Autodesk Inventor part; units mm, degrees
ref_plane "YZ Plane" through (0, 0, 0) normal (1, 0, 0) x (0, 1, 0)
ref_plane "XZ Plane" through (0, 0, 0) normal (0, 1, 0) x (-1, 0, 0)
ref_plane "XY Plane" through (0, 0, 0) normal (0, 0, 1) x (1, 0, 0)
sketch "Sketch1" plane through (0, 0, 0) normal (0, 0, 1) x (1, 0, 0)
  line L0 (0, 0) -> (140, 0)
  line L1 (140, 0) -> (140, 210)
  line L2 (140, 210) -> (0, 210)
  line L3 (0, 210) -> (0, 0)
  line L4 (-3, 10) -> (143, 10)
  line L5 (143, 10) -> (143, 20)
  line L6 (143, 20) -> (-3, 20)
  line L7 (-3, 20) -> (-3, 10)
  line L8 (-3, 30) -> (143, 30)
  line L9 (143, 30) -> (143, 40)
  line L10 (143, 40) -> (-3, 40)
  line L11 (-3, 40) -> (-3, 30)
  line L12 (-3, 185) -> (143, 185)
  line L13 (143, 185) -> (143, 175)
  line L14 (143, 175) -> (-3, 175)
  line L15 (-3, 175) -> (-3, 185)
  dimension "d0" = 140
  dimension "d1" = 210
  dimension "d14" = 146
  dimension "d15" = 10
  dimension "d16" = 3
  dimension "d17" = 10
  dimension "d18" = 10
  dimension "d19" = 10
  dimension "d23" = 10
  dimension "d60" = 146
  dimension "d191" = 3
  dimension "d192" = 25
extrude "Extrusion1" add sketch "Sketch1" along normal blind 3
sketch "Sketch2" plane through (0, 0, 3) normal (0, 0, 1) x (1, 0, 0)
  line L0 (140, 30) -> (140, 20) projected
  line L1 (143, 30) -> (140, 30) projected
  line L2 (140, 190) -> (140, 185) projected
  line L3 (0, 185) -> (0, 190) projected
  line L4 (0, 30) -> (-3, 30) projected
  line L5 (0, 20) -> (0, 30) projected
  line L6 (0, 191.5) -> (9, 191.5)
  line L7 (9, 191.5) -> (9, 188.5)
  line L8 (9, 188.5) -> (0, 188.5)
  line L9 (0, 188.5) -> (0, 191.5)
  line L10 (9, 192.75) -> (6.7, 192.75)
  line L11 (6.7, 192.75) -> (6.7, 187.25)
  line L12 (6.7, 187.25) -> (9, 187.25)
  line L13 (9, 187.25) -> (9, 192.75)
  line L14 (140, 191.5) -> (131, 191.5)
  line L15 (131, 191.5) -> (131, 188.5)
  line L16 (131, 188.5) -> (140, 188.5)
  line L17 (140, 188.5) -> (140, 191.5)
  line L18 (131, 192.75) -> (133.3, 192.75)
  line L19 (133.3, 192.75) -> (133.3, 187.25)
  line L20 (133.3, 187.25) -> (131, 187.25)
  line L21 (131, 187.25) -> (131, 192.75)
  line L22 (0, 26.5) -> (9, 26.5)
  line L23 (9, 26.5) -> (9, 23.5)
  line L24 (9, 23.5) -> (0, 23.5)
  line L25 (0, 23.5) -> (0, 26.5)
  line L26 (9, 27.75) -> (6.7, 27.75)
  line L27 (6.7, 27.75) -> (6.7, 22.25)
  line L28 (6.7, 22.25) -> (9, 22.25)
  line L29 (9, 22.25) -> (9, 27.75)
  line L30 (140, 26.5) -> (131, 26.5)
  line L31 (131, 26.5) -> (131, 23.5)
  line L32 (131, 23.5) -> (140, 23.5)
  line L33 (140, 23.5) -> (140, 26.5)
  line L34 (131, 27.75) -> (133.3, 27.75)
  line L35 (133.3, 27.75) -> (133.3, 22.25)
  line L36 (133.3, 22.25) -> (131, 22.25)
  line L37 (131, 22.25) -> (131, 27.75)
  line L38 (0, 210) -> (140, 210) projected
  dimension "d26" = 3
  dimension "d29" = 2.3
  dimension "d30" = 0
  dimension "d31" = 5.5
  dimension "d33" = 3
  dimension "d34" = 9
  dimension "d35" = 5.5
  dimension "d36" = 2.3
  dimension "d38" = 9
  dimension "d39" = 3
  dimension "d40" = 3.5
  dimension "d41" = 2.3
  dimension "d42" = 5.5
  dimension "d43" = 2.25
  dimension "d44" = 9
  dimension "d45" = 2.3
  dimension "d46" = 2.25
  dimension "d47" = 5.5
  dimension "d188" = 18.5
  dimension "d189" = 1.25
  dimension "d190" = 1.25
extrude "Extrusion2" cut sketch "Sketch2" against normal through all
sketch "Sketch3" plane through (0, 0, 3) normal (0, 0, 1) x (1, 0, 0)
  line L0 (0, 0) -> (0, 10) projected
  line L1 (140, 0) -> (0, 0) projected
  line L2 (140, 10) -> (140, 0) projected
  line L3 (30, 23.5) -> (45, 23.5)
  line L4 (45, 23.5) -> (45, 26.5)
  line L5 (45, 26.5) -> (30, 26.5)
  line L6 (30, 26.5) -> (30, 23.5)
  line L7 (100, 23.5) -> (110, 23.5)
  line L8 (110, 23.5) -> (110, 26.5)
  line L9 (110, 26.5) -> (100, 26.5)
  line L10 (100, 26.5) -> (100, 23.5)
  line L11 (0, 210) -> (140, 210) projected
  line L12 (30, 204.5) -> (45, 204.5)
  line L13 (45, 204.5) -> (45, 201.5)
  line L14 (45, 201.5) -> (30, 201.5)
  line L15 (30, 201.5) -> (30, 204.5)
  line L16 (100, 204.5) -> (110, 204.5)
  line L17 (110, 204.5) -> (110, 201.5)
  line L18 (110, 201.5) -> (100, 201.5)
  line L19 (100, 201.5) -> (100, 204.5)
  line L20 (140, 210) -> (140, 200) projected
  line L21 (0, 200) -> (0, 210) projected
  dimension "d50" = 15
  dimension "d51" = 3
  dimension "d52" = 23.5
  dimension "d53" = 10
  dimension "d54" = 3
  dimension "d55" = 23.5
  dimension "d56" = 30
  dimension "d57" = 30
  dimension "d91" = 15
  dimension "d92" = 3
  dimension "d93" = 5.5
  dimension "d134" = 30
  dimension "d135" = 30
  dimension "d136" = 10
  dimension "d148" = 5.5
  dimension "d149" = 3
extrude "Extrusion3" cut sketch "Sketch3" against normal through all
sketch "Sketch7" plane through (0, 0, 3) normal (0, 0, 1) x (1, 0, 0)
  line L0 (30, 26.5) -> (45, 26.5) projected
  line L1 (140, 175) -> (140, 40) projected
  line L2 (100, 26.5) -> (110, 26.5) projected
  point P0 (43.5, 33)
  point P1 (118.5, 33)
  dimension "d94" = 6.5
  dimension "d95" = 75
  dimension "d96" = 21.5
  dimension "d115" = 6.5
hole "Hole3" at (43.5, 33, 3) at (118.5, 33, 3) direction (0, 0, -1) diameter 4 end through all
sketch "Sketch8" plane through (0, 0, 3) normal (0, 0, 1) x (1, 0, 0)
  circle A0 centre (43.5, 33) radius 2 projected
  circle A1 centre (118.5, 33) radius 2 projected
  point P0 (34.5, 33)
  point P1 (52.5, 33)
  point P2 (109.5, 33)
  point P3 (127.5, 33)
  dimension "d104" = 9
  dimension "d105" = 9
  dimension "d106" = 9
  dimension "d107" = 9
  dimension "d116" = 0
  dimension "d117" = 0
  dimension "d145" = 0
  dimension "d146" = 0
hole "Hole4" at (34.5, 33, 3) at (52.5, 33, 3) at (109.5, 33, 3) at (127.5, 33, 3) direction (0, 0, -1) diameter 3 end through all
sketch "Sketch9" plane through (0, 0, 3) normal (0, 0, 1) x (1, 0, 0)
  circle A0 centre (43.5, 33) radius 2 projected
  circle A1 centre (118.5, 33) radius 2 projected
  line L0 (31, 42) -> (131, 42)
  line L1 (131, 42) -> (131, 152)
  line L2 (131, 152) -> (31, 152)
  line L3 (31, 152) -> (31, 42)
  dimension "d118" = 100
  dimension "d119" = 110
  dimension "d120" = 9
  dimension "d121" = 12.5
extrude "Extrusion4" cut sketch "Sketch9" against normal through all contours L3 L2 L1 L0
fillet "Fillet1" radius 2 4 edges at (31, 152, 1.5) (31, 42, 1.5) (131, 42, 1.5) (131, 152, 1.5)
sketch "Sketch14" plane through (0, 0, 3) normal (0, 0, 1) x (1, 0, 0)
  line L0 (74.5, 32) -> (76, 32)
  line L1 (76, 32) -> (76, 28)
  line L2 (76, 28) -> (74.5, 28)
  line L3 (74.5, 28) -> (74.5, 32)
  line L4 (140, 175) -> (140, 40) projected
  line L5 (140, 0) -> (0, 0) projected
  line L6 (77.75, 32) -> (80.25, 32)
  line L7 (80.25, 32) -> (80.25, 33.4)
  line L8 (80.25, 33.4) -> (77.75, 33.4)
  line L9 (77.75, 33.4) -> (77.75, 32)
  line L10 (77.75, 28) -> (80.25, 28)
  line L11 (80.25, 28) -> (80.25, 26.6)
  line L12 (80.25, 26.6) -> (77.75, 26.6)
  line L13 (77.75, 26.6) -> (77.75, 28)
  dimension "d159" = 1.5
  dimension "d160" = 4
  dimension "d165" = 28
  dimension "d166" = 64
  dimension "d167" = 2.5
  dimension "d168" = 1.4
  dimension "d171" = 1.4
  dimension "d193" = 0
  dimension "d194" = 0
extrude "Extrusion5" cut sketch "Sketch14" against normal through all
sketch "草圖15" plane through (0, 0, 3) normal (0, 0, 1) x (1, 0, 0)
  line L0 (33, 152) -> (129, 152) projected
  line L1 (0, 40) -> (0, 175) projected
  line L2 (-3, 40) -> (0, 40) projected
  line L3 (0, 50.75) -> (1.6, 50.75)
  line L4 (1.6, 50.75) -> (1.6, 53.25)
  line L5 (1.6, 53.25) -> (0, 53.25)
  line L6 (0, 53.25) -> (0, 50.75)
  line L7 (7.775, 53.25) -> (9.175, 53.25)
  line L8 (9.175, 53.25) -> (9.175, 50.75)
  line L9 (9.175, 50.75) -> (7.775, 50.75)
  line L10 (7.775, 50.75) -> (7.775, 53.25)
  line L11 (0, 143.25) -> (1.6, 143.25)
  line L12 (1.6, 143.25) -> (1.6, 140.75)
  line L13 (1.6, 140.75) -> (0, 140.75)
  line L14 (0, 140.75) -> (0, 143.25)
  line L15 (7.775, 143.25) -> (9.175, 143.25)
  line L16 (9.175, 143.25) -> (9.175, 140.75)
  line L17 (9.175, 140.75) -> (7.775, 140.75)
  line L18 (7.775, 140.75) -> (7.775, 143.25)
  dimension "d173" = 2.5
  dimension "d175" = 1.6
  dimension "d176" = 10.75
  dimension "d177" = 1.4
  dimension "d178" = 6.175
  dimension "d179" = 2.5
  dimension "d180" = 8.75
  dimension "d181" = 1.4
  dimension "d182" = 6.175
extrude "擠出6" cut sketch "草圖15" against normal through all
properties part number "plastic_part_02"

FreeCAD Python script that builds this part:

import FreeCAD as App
import Part
import Sketcher
from FreeCAD import Vector
Q = App.Units.Quantity


def edges_at(feature, points):
    """Names of the edges that pass closest to the given points."""
    edges = feature.Shape.Edges
    near = lambda p: min(range(len(edges)), key=lambda i: edges[i].distToShape(Part.Vertex(*p))[0])
    return sorted({f"Edge{near(p) + 1}" for p in points})

doc = App.newDocument("Part")
body = doc.addObject("PartDesign::Body", "Body")

# Sketch on XY plane
sketch1 = body.newObject("Sketcher::SketchObject", "Sketch")
sketch1.AttachmentSupport = (doc.getObject("XY_Plane"), [""])
sketch1.MapMode = "FlatFace"
sketch1.addGeometry([
    Part.LineSegment(Vector(0, 10, 0), Vector(0, 0, 0)),  # 0
    Part.LineSegment(Vector(0, 0, 0), Vector(140, 0, 0)),  # 1
    Part.LineSegment(Vector(140, 0, 0), Vector(140, 10, 0)),  # 2
    Part.LineSegment(Vector(140, 10, 0), Vector(143, 10, 0)),  # 3
    Part.LineSegment(Vector(143, 10, 0), Vector(143, 20, 0)),  # 4
    Part.LineSegment(Vector(143, 20, 0), Vector(140, 20, 0)),  # 5
    Part.LineSegment(Vector(140, 20, 0), Vector(140, 30, 0)),  # 6
    Part.LineSegment(Vector(140, 30, 0), Vector(143, 30, 0)),  # 7
    Part.LineSegment(Vector(143, 30, 0), Vector(143, 40, 0)),  # 8
    Part.LineSegment(Vector(143, 40, 0), Vector(140, 40, 0)),  # 9
    Part.LineSegment(Vector(140, 40, 0), Vector(140, 175, 0)),  # 10
    Part.LineSegment(Vector(140, 175, 0), Vector(143, 175, 0)),  # 11
    Part.LineSegment(Vector(143, 175, 0), Vector(143, 185, 0)),  # 12
    Part.LineSegment(Vector(143, 185, 0), Vector(140, 185, 0)),  # 13
    Part.LineSegment(Vector(140, 185, 0), Vector(140, 210, 0)),  # 14
    Part.LineSegment(Vector(140, 210, 0), Vector(0, 210, 0)),  # 15
    Part.LineSegment(Vector(0, 210, 0), Vector(0, 185, 0)),  # 16
    Part.LineSegment(Vector(0, 185, 0), Vector(-3, 185, 0)),  # 17
    Part.LineSegment(Vector(-3, 185, 0), Vector(-3, 175, 0)),  # 18
    Part.LineSegment(Vector(-3, 175, 0), Vector(0, 175, 0)),  # 19
    Part.LineSegment(Vector(0, 175, 0), Vector(0, 40, 0)),  # 20
    Part.LineSegment(Vector(0, 40, 0), Vector(-3, 40, 0)),  # 21
    Part.LineSegment(Vector(-3, 40, 0), Vector(-3, 30, 0)),  # 22
    Part.LineSegment(Vector(-3, 30, 0), Vector(0, 30, 0)),  # 23
    Part.LineSegment(Vector(0, 30, 0), Vector(0, 20, 0)),  # 24
    Part.LineSegment(Vector(0, 20, 0), Vector(-3, 20, 0)),  # 25
    Part.LineSegment(Vector(-3, 20, 0), Vector(-3, 10, 0)),  # 26
    Part.LineSegment(Vector(-3, 10, 0), Vector(0, 10, 0)),  # 27
], False)
sketch1.addConstraint([
    Sketcher.Constraint("Coincident", 0, 2, 1, 1),
    Sketcher.Constraint("Coincident", 1, 2, 2, 1),
    Sketcher.Constraint("Coincident", 2, 2, 3, 1),
    Sketcher.Constraint("Coincident", 3, 2, 4, 1),
    Sketcher.Constraint("Coincident", 4, 2, 5, 1),
    Sketcher.Constraint("Coincident", 5, 2, 6, 1),
    Sketcher.Constraint("Coincident", 6, 2, 7, 1),
    Sketcher.Constraint("Coincident", 7, 2, 8, 1),
    Sketcher.Constraint("Coincident", 8, 2, 9, 1),
    Sketcher.Constraint("Coincident", 9, 2, 10, 1),
    Sketcher.Constraint("Coincident", 10, 2, 11, 1),
    Sketcher.Constraint("Coincident", 11, 2, 12, 1),
    Sketcher.Constraint("Coincident", 12, 2, 13, 1),
    Sketcher.Constraint("Coincident", 13, 2, 14, 1),
    Sketcher.Constraint("Coincident", 14, 2, 15, 1),
    Sketcher.Constraint("Coincident", 15, 2, 16, 1),
    Sketcher.Constraint("Coincident", 16, 2, 17, 1),
    Sketcher.Constraint("Coincident", 17, 2, 18, 1),
    Sketcher.Constraint("Coincident", 18, 2, 19, 1),
    Sketcher.Constraint("Coincident", 19, 2, 20, 1),
    Sketcher.Constraint("Coincident", 20, 2, 21, 1),
    Sketcher.Constraint("Coincident", 21, 2, 22, 1),
    Sketcher.Constraint("Coincident", 22, 2, 23, 1),
    Sketcher.Constraint("Coincident", 23, 2, 24, 1),
    Sketcher.Constraint("Coincident", 24, 2, 25, 1),
    Sketcher.Constraint("Coincident", 25, 2, 26, 1),
    Sketcher.Constraint("Coincident", 26, 2, 27, 1),
    Sketcher.Constraint("Coincident", 27, 2, 0, 1),
    Sketcher.Constraint("Vertical", 0),
    Sketcher.Constraint("Horizontal", 1),
    Sketcher.Constraint("Vertical", 2),
    Sketcher.Constraint("Horizontal", 3),
    Sketcher.Constraint("Vertical", 4),
    Sketcher.Constraint("Horizontal", 5),
    Sketcher.Constraint("Vertical", 6),
    Sketcher.Constraint("Horizontal", 7),
    Sketcher.Constraint("Vertical", 8),
    Sketcher.Constraint("Horizontal", 9),
    Sketcher.Constraint("Vertical", 10),
    Sketcher.Constraint("Horizontal", 11),
    Sketcher.Constraint("Vertical", 12),
    Sketcher.Constraint("Horizontal", 13),
    Sketcher.Constraint("Vertical", 14),
    Sketcher.Constraint("Horizontal", 15),
    Sketcher.Constraint("Vertical", 16),
    Sketcher.Constraint("Horizontal", 17),
    Sketcher.Constraint("Vertical", 18),
    Sketcher.Constraint("Horizontal", 19),
    Sketcher.Constraint("Vertical", 20),
    Sketcher.Constraint("Horizontal", 21),
    Sketcher.Constraint("Vertical", 22),
    Sketcher.Constraint("Horizontal", 23),
    Sketcher.Constraint("Vertical", 24),
    Sketcher.Constraint("Horizontal", 25),
    Sketcher.Constraint("Vertical", 26),
    Sketcher.Constraint("Horizontal", 27),
    Sketcher.Constraint("Coincident", 0, 2, -1, 1),
    Sketcher.Constraint("PointOnObject", 15, 2, -2),
    Sketcher.Constraint("PointOnObject", 19, 2, -2),
    Sketcher.Constraint("PointOnObject", 23, 2, -2),
    Sketcher.Constraint("Horizontal", 13, 2, 16, 2),
    Sketcher.Constraint("Horizontal", 11, 2, 18, 2),
    Sketcher.Constraint("Horizontal", 9, 2, 20, 2),
    Sketcher.Constraint("Horizontal", 7, 2, 22, 2),
    Sketcher.Constraint("Horizontal", 5, 2, 24, 2),
    Sketcher.Constraint("Horizontal", 3, 2, 26, 2),
    Sketcher.Constraint("Vertical", 2, 2, 5, 2),
    Sketcher.Constraint("Vertical", 4, 2, 7, 2),
    Sketcher.Constraint("Vertical", 6, 2, 9, 2),
    Sketcher.Constraint("Vertical", 8, 2, 11, 2),
    Sketcher.Constraint("Vertical", 10, 2, 13, 2),
    Sketcher.Constraint("Vertical", 18, 2, 21, 2),
    Sketcher.Constraint("Vertical", 22, 2, 25, 2),
    Sketcher.Constraint("Equal", 13, 17),
    Sketcher.Constraint("Equal", 2, 4),
    Sketcher.Constraint("Equal", 4, 6),
    Sketcher.Constraint("Equal", 6, 8),
    Sketcher.Constraint("Equal", 8, 12),
    Sketcher.Constraint("DistanceX", 1, 1, 1, 2, Q("140 mm")),
    Sketcher.Constraint("DistanceX", 3, 1, 3, 2, Q("3 mm")),
    Sketcher.Constraint("DistanceY", 0, 2, 0, 1, Q("10 mm")),
    Sketcher.Constraint("DistanceY", 14, 1, 14, 2, Q("25 mm")),
    Sketcher.Constraint("DistanceY", -1, 1, 14, 2, Q("210 mm")),
])
pad1 = body.newObject("PartDesign::Pad", "Pad")
pad1.Profile = sketch1
pad1.Length = 3

# Sketch on XY plane
sketch2 = body.newObject("Sketcher::SketchObject", "Sketch001")
sketch2.AttachmentSupport = (doc.getObject("XY_Plane"), [""])
sketch2.MapMode = "FlatFace"
sketch2.AttachmentOffset = App.Placement(Vector(0, 0, 3), App.Rotation())
sketch2.addGeometry([
    Part.LineSegment(Vector(140, 23.5, 0), Vector(140, 26.5, 0)),  # 0
    Part.LineSegment(Vector(140, 26.5, 0), Vector(133.3, 26.5, 0)),  # 1
    Part.LineSegment(Vector(133.3, 26.5, 0), Vector(133.3, 27.8, 0)),  # 2
    Part.LineSegment(Vector(133.3, 27.8, 0), Vector(131, 27.8, 0)),  # 3
    Part.LineSegment(Vector(131, 27.8, 0), Vector(131, 22.2, 0)),  # 4
    Part.LineSegment(Vector(131, 22.2, 0), Vector(133.3, 22.2, 0)),  # 5
    Part.LineSegment(Vector(133.3, 22.2, 0), Vector(133.3, 23.5, 0)),  # 6
    Part.LineSegment(Vector(133.3, 23.5, 0), Vector(140, 23.5, 0)),  # 7
    Part.LineSegment(Vector(140, 188.5, 0), Vector(140, 191.5, 0)),  # 8
    Part.LineSegment(Vector(140, 191.5, 0), Vector(133.3, 191.5, 0)),  # 9
    Part.LineSegment(Vector(133.3, 191.5, 0), Vector(133.3, 192.8, 0)),  # 10
    Part.LineSegment(Vector(133.3, 192.8, 0), Vector(131, 192.8, 0)),  # 11
    Part.LineSegment(Vector(131, 192.8, 0), Vector(131, 187.2, 0)),  # 12
    Part.LineSegment(Vector(131, 187.2, 0), Vector(133.3, 187.2, 0)),  # 13
    Part.LineSegment(Vector(133.3, 187.2, 0), Vector(133.3, 188.5, 0)),  # 14
    Part.LineSegment(Vector(133.3, 188.5, 0), Vector(140, 188.5, 0)),  # 15
    Part.LineSegment(Vector(0, 188.5, 0), Vector(6.7, 188.5, 0)),  # 16
    Part.LineSegment(Vector(6.7, 188.5, 0), Vector(6.7, 187.2, 0)),  # 17
    Part.LineSegment(Vector(6.7, 187.2, 0), Vector(9, 187.2, 0)),  # 18
    Part.LineSegment(Vector(9, 187.2, 0), Vector(9, 192.8, 0)),  # 19
    Part.LineSegment(Vector(9, 192.8, 0), Vector(6.7, 192.8, 0)),  # 20
    Part.LineSegment(Vector(6.7, 192.8, 0), Vector(6.7, 191.5, 0)),  # 21
    Part.LineSegment(Vector(6.7, 191.5, 0), Vector(0, 191.5, 0)),  # 22
    Part.LineSegment(Vector(0, 191.5, 0), Vector(0, 188.5, 0)),  # 23
    Part.LineSegment(Vector(0, 26.5, 0), Vector(0, 23.5, 0)),  # 24
    Part.LineSegment(Vector(0, 23.5, 0), Vector(6.7, 23.5, 0)),  # 25
    Part.LineSegment(Vector(6.7, 23.5, 0), Vector(6.7, 22.2, 0)),  # 26
    Part.LineSegment(Vector(6.7, 22.2, 0), Vector(9, 22.2, 0)),  # 27
    Part.LineSegment(Vector(9, 22.2, 0), Vector(9, 27.8, 0)),  # 28
    Part.LineSegment(Vector(9, 27.8, 0), Vector(6.7, 27.8, 0)),  # 29
    Part.LineSegment(Vector(6.7, 27.8, 0), Vector(6.7, 26.5, 0)),  # 30
    Part.LineSegment(Vector(6.7, 26.5, 0), Vector(0, 26.5, 0)),  # 31
], False)
sketch2.addConstraint([
    Sketcher.Constraint("Coincident", 0, 2, 1, 1),
    Sketcher.Constraint("Coincident", 1, 2, 2, 1),
    Sketcher.Constraint("Coincident", 2, 2, 3, 1),
    Sketcher.Constraint("Coincident", 3, 2, 4, 1),
    Sketcher.Constraint("Coincident", 4, 2, 5, 1),
    Sketcher.Constraint("Coincident", 5, 2, 6, 1),
    Sketcher.Constraint("Coincident", 6, 2, 7, 1),
    Sketcher.Constraint("Coincident", 7, 2, 0, 1),
    Sketcher.Constraint("Coincident", 8, 2, 9, 1),
    Sketcher.Constraint("Coincident", 9, 2, 10, 1),
    Sketcher.Constraint("Coincident", 10, 2, 11, 1),
    Sketcher.Constraint("Coincident", 11, 2, 12, 1),
    Sketcher.Constraint("Coincident", 12, 2, 13, 1),
    Sketcher.Constraint("Coincident", 13, 2, 14, 1),
    Sketcher.Constraint("Coincident", 14, 2, 15, 1),
    Sketcher.Constraint("Coincident", 15, 2, 8, 1),
    Sketcher.Constraint("Coincident", 16, 2, 17, 1),
    Sketcher.Constraint("Coincident", 17, 2, 18, 1),
    Sketcher.Constraint("Coincident", 18, 2, 19, 1),
    Sketcher.Constraint("Coincident", 19, 2, 20, 1),
    Sketcher.Constraint("Coincident", 20, 2, 21, 1),
    Sketcher.Constraint("Coincident", 21, 2, 22, 1),
    Sketcher.Constraint("Coincident", 22, 2, 23, 1),
    Sketcher.Constraint("Coincident", 23, 2, 16, 1),
    Sketcher.Constraint("Coincident", 24, 2, 25, 1),
    Sketcher.Constraint("Coincident", 25, 2, 26, 1),
    Sketcher.Constraint("Coincident", 26, 2, 27, 1),
    Sketcher.Constraint("Coincident", 27, 2, 28, 1),
    Sketcher.Constraint("Coincident", 28, 2, 29, 1),
    Sketcher.Constraint("Coincident", 29, 2, 30, 1),
    Sketcher.Constraint("Coincident", 30, 2, 31, 1),
    Sketcher.Constraint("Coincident", 31, 2, 24, 1),
    Sketcher.Constraint("Vertical", 0),
    Sketcher.Constraint("Horizontal", 1),
    Sketcher.Constraint("Vertical", 2),
    Sketcher.Constraint("Horizontal", 3),
    Sketcher.Constraint("Vertical", 4),
    Sketcher.Constraint("Horizontal", 5),
    Sketcher.Constraint("Vertical", 6),
    Sketcher.Constraint("Horizontal", 7),
    Sketcher.Constraint("Vertical", 8),
    Sketcher.Constraint("Horizontal", 9),
    Sketcher.Constraint("Vertical", 10),
    Sketcher.Constraint("Horizontal", 11),
    Sketcher.Constraint("Vertical", 12),
    Sketcher.Constraint("Horizontal", 13),
    Sketcher.Constraint("Vertical", 14),
    Sketcher.Constraint("Horizontal", 15),
    Sketcher.Constraint("Horizontal", 16),
    Sketcher.Constraint("Vertical", 17),
    Sketcher.Constraint("Horizontal", 18),
    Sketcher.Constraint("Vertical", 19),
    Sketcher.Constraint("Horizontal", 20),
    Sketcher.Constraint("Vertical", 21),
    Sketcher.Constraint("Horizontal", 22),
    Sketcher.Constraint("Vertical", 23),
    Sketcher.Constraint("Vertical", 24),
    Sketcher.Constraint("Horizontal", 25),
    Sketcher.Constraint("Vertical", 26),
    Sketcher.Constraint("Horizontal", 27),
    Sketcher.Constraint("Vertical", 28),
    Sketcher.Constraint("Horizontal", 29),
    Sketcher.Constraint("Vertical", 30),
    Sketcher.Constraint("Horizontal", 31),
    Sketcher.Constraint("PointOnObject", 22, 2, -2),
    Sketcher.Constraint("PointOnObject", 24, 2, -2),
    Sketcher.Constraint("Horizontal", 15, 2, 16, 2),
    Sketcher.Constraint("Horizontal", 13, 2, 17, 2),
    Sketcher.Constraint("Horizontal", 11, 2, 19, 2),
    Sketcher.Constraint("Horizontal", 9, 2, 21, 2),
    Sketcher.Constraint("Horizontal", 7, 2, 24, 2),
    Sketcher.Constraint("Horizontal", 5, 2, 26, 2),
    Sketcher.Constraint("Horizontal", 3, 2, 28, 2),
    Sketcher.Constraint("Horizontal", 1, 2, 30, 2),
    Sketcher.Constraint("Vertical", 2, 2, 5, 2),
    Sketcher.Constraint("Vertical", 7, 2, 8, 2),
    Sketcher.Constraint("Vertical", 6, 2, 9, 2),
    Sketcher.Constraint("Vertical", 4, 2, 11, 2),
    Sketcher.Constraint("Vertical", 10, 2, 13, 2),
    Sketcher.Constraint("Vertical", 17, 2, 20, 2),
    Sketcher.Constraint("Vertical", 21, 2, 25, 2),
    Sketcher.Constraint("Vertical", 19, 2, 27, 2),
    Sketcher.Constraint("Vertical", 26, 2, 29, 2),
    Sketcher.Constraint("Equal", 15, 16),
    Sketcher.Constraint("Equal", 13, 18),
    Sketcher.Constraint("Equal", 2, 6),
    Sketcher.Constraint("Equal", 0, 8),
    Sketcher.Constraint("Equal", 6, 10),
    Sketcher.Constraint("Equal", 4, 12),
    Sketcher.Constraint("DistanceY", 0, 1, 0, 2, Q("3 mm")),
    Sketcher.Constraint("DistanceX", 3, 2, 3, 1, Q("2.3 mm")),
    Sketcher.Constraint("DistanceY", 4, 2, 4, 1, Q("5.5 mm")),
    Sketcher.Constraint("DistanceX", -1, 1, 18, 2, Q("9 mm")),
    Sketcher.Constraint("DistanceX", -1, 1, 0, 2, Q("140 mm")),
    Sketcher.Constraint("DistanceY", 0, 2, 8, 2, Q("165 mm")),
    Sketcher.Constraint("DistanceY", -1, 1, 0, 2, Q("26.5 mm")),
])
pocket1 = body.newObject("PartDesign::Pocket", "Pocket")
pocket1.Profile = sketch2
pocket1.Type = "ThroughAll"

# Sketch on XY plane
sketch3 = body.newObject("Sketcher::SketchObject", "Sketch002")
sketch3.AttachmentSupport = (doc.getObject("XY_Plane"), [""])
sketch3.MapMode = "FlatFace"
sketch3.AttachmentOffset = App.Placement(Vector(0, 0, 3), App.Rotation())
sketch3.addGeometry([
    Part.LineSegment(Vector(30, 26.5, 0), Vector(30, 23.5, 0)),  # 0
    Part.LineSegment(Vector(30, 23.5, 0), Vector(45, 23.5, 0)),  # 1
    Part.LineSegment(Vector(45, 23.5, 0), Vector(45, 26.5, 0)),  # 2
    Part.LineSegment(Vector(45, 26.5, 0), Vector(30, 26.5, 0)),  # 3
    Part.LineSegment(Vector(100, 26.5, 0), Vector(100, 23.5, 0)),  # 4
    Part.LineSegment(Vector(100, 23.5, 0), Vector(110, 23.5, 0)),  # 5
    Part.LineSegment(Vector(110, 23.5, 0), Vector(110, 26.5, 0)),  # 6
    Part.LineSegment(Vector(110, 26.5, 0), Vector(100, 26.5, 0)),  # 7
    Part.LineSegment(Vector(45, 204.5, 0), Vector(30, 204.5, 0)),  # 8
    Part.LineSegment(Vector(30, 204.5, 0), Vector(30, 201.5, 0)),  # 9
    Part.LineSegment(Vector(30, 201.5, 0), Vector(45, 201.5, 0)),  # 10
    Part.LineSegment(Vector(45, 201.5, 0), Vector(45, 204.5, 0)),  # 11
    Part.LineSegment(Vector(110, 204.5, 0), Vector(100, 204.5, 0)),  # 12
    Part.LineSegment(Vector(100, 204.5, 0), Vector(100, 201.5, 0)),  # 13
    Part.LineSegment(Vector(100, 201.5, 0), Vector(110, 201.5, 0)),  # 14
    Part.LineSegment(Vector(110, 201.5, 0), Vector(110, 204.5, 0)),  # 15
], False)
sketch3.addConstraint([
    Sketcher.Constraint("Coincident", 0, 2, 1, 1),
    Sketcher.Constraint("Coincident", 1, 2, 2, 1),
    Sketcher.Constraint("Coincident", 2, 2, 3, 1),
    Sketcher.Constraint("Coincident", 3, 2, 0, 1),
    Sketcher.Constraint("Coincident", 4, 2, 5, 1),
    Sketcher.Constraint("Coincident", 5, 2, 6, 1),
    Sketcher.Constraint("Coincident", 6, 2, 7, 1),
    Sketcher.Constraint("Coincident", 7, 2, 4, 1),
    Sketcher.Constraint("Coincident", 8, 2, 9, 1),
    Sketcher.Constraint("Coincident", 9, 2, 10, 1),
    Sketcher.Constraint("Coincident", 10, 2, 11, 1),
    Sketcher.Constraint("Coincident", 11, 2, 8, 1),
    Sketcher.Constraint("Coincident", 12, 2, 13, 1),
    Sketcher.Constraint("Coincident", 13, 2, 14, 1),
    Sketcher.Constraint("Coincident", 14, 2, 15, 1),
    Sketcher.Constraint("Coincident", 15, 2, 12, 1),
    Sketcher.Constraint("Vertical", 0),
    Sketcher.Constraint("Horizontal", 1),
    Sketcher.Constraint("Vertical", 2),
    Sketcher.Constraint("Horizontal", 3),
    Sketcher.Constraint("Vertical", 4),
    Sketcher.Constraint("Horizontal", 5),
    Sketcher.Constraint("Vertical", 6),
    Sketcher.Constraint("Horizontal", 7),
    Sketcher.Constraint("Horizontal", 8),
    Sketcher.Constraint("Vertical", 9),
    Sketcher.Constraint("Horizontal", 10),
    Sketcher.Constraint("Vertical", 11),
    Sketcher.Constraint("Horizontal", 12),
    Sketcher.Constraint("Vertical", 13),
    Sketcher.Constraint("Horizontal", 14),
    Sketcher.Constraint("Vertical", 15),
    Sketcher.Constraint("Horizontal", 1, 2, 4, 2),
    Sketcher.Constraint("Horizontal", 3, 2, 6, 2),
    Sketcher.Constraint("Horizontal", 11, 2, 12, 2),
    Sketcher.Constraint("Horizontal", 10, 2, 13, 2),
    Sketcher.Constraint("Vertical", 3, 2, 8, 2),
    Sketcher.Constraint("Vertical", 2, 2, 10, 2),
    Sketcher.Constraint("Vertical", 7, 2, 12, 2),
    Sketcher.Constraint("Vertical", 6, 2, 14, 2),
    Sketcher.Constraint("Equal", 6, 9),
    Sketcher.Constraint("DistanceX", 1, 1, 1, 2, Q("15 mm")),
    Sketcher.Constraint("DistanceX", 5, 1, 5, 2, Q("10 mm")),
    Sketcher.Constraint("DistanceY", 0, 2, 0, 1, Q("3 mm")),
    Sketcher.Constraint("DistanceX", -1, 1, 0, 2, Q("30 mm")),
    Sketcher.Constraint("DistanceY", -1, 1, 0, 2, Q("23.5 mm")),
    Sketcher.Constraint("DistanceX", -1, 1, 4, 2, Q("100 mm")),
    Sketcher.Constraint("DistanceY", 3, 2, 8, 2, Q("178 mm")),
])
pocket2 = body.newObject("PartDesign::Pocket", "Pocket001")
pocket2.Profile = sketch3
pocket2.Type = "ThroughAll"

# Sketch on XY plane
sketch4 = body.newObject("Sketcher::SketchObject", "Sketch003")
sketch4.AttachmentSupport = (doc.getObject("XY_Plane"), [""])
sketch4.MapMode = "FlatFace"
sketch4.AttachmentOffset = App.Placement(Vector(0, 0, 3), App.Rotation())
sketch4.addGeometry([
    Part.Circle(Vector(43.5, 33, 0), Vector(0, 0, 1), 2),
    Part.Circle(Vector(118.5, 33, 0), Vector(0, 0, 1), 2),
], False)
sketch4.addConstraint([
    Sketcher.Constraint("Equal", 0, 1),
    Sketcher.Constraint("Horizontal", 0, 3, 1, 3),
    Sketcher.Constraint("Diameter", 0, Q("4 mm")),
    Sketcher.Constraint("DistanceY", -1, 1, 0, 3, Q("33 mm")),
    Sketcher.Constraint("DistanceX", 0, 3, 1, 3, Q("75 mm")),
    Sketcher.Constraint("DistanceX", -1, 1, 0, 3, Q("43.5 mm")),
])
doc.recompute()
hole = body.newObject("PartDesign::Hole", "Hole")
hole.Profile = sketch4
hole.ThreadType = "None"
hole.Diameter = 4
hole.DepthType = "ThroughAll"

# Sketch on XY plane
sketch5 = body.newObject("Sketcher::SketchObject", "Sketch004")
sketch5.AttachmentSupport = (doc.getObject("XY_Plane"), [""])
sketch5.MapMode = "FlatFace"
sketch5.AttachmentOffset = App.Placement(Vector(0, 0, 3), App.Rotation())
sketch5.addGeometry([
    Part.Circle(Vector(34.5, 33, 0), Vector(0, 0, 1), 1.5),
    Part.Circle(Vector(52.5, 33, 0), Vector(0, 0, 1), 1.5),
    Part.Circle(Vector(109.5, 33, 0), Vector(0, 0, 1), 1.5),
    Part.Circle(Vector(127.5, 33, 0), Vector(0, 0, 1), 1.5),
], False)
sketch5.addConstraint([
    Sketcher.Constraint("Equal", 0, 1),
    Sketcher.Constraint("Equal", 1, 2),
    Sketcher.Constraint("Equal", 2, 3),
    Sketcher.Constraint("Horizontal", 0, 3, 1, 3),
    Sketcher.Constraint("Horizontal", 1, 3, 2, 3),
    Sketcher.Constraint("Horizontal", 2, 3, 3, 3),
    Sketcher.Constraint("Diameter", 0, Q("3 mm")),
    Sketcher.Constraint("DistanceY", -1, 1, 0, 3, Q("33 mm")),
    Sketcher.Constraint("DistanceX", 0, 3, 1, 3, Q("18 mm")),
    Sketcher.Constraint("DistanceX", 1, 3, 2, 3, Q("57 mm")),
    Sketcher.Constraint("DistanceX", 2, 3, 3, 3, Q("18 mm")),
    Sketcher.Constraint("DistanceX", -1, 1, 0, 3, Q("34.5 mm")),
])
doc.recompute()
hole2 = body.newObject("PartDesign::Hole", "Hole001")
hole2.Profile = sketch5
hole2.ThreadType = "None"
hole2.Diameter = 3
hole2.DepthType = "ThroughAll"

# Sketch on XY plane
sketch6 = body.newObject("Sketcher::SketchObject", "Sketch005")
sketch6.AttachmentSupport = (doc.getObject("XY_Plane"), [""])
sketch6.MapMode = "FlatFace"
sketch6.AttachmentOffset = App.Placement(Vector(0, 0, 3), App.Rotation())
sketch6.addGeometry([
    Part.LineSegment(Vector(31, 152, 0), Vector(31, 42, 0)),
    Part.LineSegment(Vector(31, 42, 0), Vector(131, 42, 0)),
    Part.LineSegment(Vector(131, 42, 0), Vector(131, 152, 0)),
    Part.LineSegment(Vector(131, 152, 0), Vector(31, 152, 0)),
], False)
sketch6.addConstraint([
    Sketcher.Constraint("Coincident", 0, 2, 1, 1),
    Sketcher.Constraint("Coincident", 1, 2, 2, 1),
    Sketcher.Constraint("Coincident", 2, 2, 3, 1),
    Sketcher.Constraint("Coincident", 3, 2, 0, 1),
    Sketcher.Constraint("Vertical", 0),
    Sketcher.Constraint("Horizontal", 1),
    Sketcher.Constraint("Vertical", 2),
    Sketcher.Constraint("Horizontal", 3),
    Sketcher.Constraint("DistanceX", 1, 1, 1, 2, Q("100 mm")),
    Sketcher.Constraint("DistanceY", 0, 2, 0, 1, Q("110 mm")),
    Sketcher.Constraint("DistanceX", -1, 1, 0, 2, Q("31 mm")),
    Sketcher.Constraint("DistanceY", -1, 1, 0, 2, Q("42 mm")),
])
pocket3 = body.newObject("PartDesign::Pocket", "Pocket002")
pocket3.Profile = sketch6
pocket3.Type = "ThroughAll"
doc.recompute()

fillet = body.newObject("PartDesign::Fillet", "Fillet")
fillet.Base = (pocket3, edges_at(pocket3, [
    (31, 152, 1.5),
    (31, 42, 1.5),
    (131, 42, 1.5),
    (131, 152, 1.5),
]))
fillet.Radius = 2

# Sketch on XY plane
sketch7 = body.newObject("Sketcher::SketchObject", "Sketch006")
sketch7.AttachmentSupport = (doc.getObject("XY_Plane"), [""])
sketch7.MapMode = "FlatFace"
sketch7.AttachmentOffset = App.Placement(Vector(0, 0, 3), App.Rotation())
sketch7.addGeometry([
    Part.LineSegment(Vector(76, 32, 0), Vector(74.5, 32, 0)),  # 0
    Part.LineSegment(Vector(74.5, 32, 0), Vector(74.5, 28, 0)),  # 1
    Part.LineSegment(Vector(74.5, 28, 0), Vector(76, 28, 0)),  # 2
    Part.LineSegment(Vector(76, 28, 0), Vector(76, 32, 0)),  # 3
    Part.LineSegment(Vector(77.8, 33.4, 0), Vector(77.8, 32, 0)),  # 4
    Part.LineSegment(Vector(77.8, 32, 0), Vector(80.2, 32, 0)),  # 5
    Part.LineSegment(Vector(80.2, 32, 0), Vector(80.2, 33.4, 0)),  # 6
    Part.LineSegment(Vector(80.2, 33.4, 0), Vector(77.8, 33.4, 0)),  # 7
    Part.LineSegment(Vector(80.2, 28, 0), Vector(77.8, 28, 0)),  # 8
    Part.LineSegment(Vector(77.8, 28, 0), Vector(77.8, 26.6, 0)),  # 9
    Part.LineSegment(Vector(77.8, 26.6, 0), Vector(80.2, 26.6, 0)),  # 10
    Part.LineSegment(Vector(80.2, 26.6, 0), Vector(80.2, 28, 0)),  # 11
], False)
sketch7.addConstraint([
    Sketcher.Constraint("Coincident", 0, 2, 1, 1),
    Sketcher.Constraint("Coincident", 1, 2, 2, 1),
    Sketcher.Constraint("Coincident", 2, 2, 3, 1),
    Sketcher.Constraint("Coincident", 3, 2, 0, 1),
    Sketcher.Constraint("Coincident", 4, 2, 5, 1),
    Sketcher.Constraint("Coincident", 5, 2, 6, 1),
    Sketcher.Constraint("Coincident", 6, 2, 7, 1),
    Sketcher.Constraint("Coincident", 7, 2, 4, 1),
    Sketcher.Constraint("Coincident", 8, 2, 9, 1),
    Sketcher.Constraint("Coincident", 9, 2, 10, 1),
    Sketcher.Constraint("Coincident", 10, 2, 11, 1),
    Sketcher.Constraint("Coincident", 11, 2, 8, 1),
    Sketcher.Constraint("Horizontal", 0),
    Sketcher.Constraint("Vertical", 1),
    Sketcher.Constraint("Horizontal", 2),
    Sketcher.Constraint("Vertical", 3),
    Sketcher.Constraint("Vertical", 4),
    Sketcher.Constraint("Horizontal", 5),
    Sketcher.Constraint("Vertical", 6),
    Sketcher.Constraint("Horizontal", 7),
    Sketcher.Constraint("Horizontal", 8),
    Sketcher.Constraint("Vertical", 9),
    Sketcher.Constraint("Horizontal", 10),
    Sketcher.Constraint("Vertical", 11),
    Sketcher.Constraint("Horizontal", 3, 2, 4, 2),
    Sketcher.Constraint("Horizontal", 2, 2, 8, 2),
    Sketcher.Constraint("Vertical", 7, 2, 8, 2),
    Sketcher.Constraint("Vertical", 6, 2, 10, 2),
    Sketcher.Constraint("Equal", 6, 9),
    Sketcher.Constraint("DistanceY", 1, 2, 1, 1, Q("4 mm")),
    Sketcher.Constraint("DistanceX", 0, 2, 0, 1, Q("1.5 mm")),
    Sketcher.Constraint("DistanceX", 5, 1, 5, 2, Q("2.5 mm")),
    Sketcher.Constraint("DistanceY", 4, 2, 4, 1, Q("1.4 mm")),
    Sketcher.Constraint("DistanceY", -1, 1, 1, 2, Q("28 mm")),
    Sketcher.Constraint("DistanceX", -1, 1, 2, 2, Q("76 mm")),
    Sketcher.Constraint("DistanceX", -1, 1, 4, 2, Q("77.75 mm")),
])
pocket4 = body.newObject("PartDesign::Pocket", "Pocket003")
pocket4.Profile = sketch7
pocket4.Type = "ThroughAll"

# Sketch on XY plane
sketch8 = body.newObject("Sketcher::SketchObject", "Sketch007")
sketch8.AttachmentSupport = (doc.getObject("XY_Plane"), [""])
sketch8.MapMode = "FlatFace"
sketch8.AttachmentOffset = App.Placement(Vector(0, 0, 3), App.Rotation())
sketch8.addGeometry([
    Part.LineSegment(Vector(0, 143.2, 0), Vector(0, 140.8, 0)),  # 0
    Part.LineSegment(Vector(0, 140.8, 0), Vector(1.6, 140.8, 0)),  # 1
    Part.LineSegment(Vector(1.6, 140.8, 0), Vector(1.6, 143.2, 0)),  # 2
    Part.LineSegment(Vector(1.6, 143.2, 0), Vector(0, 143.2, 0)),  # 3
    Part.LineSegment(Vector(0, 53.2, 0), Vector(0, 50.8, 0)),  # 4
    Part.LineSegment(Vector(0, 50.8, 0), Vector(1.6, 50.8, 0)),  # 5
    Part.LineSegment(Vector(1.6, 50.8, 0), Vector(1.6, 53.2, 0)),  # 6
    Part.LineSegment(Vector(1.6, 53.2, 0), Vector(0, 53.2, 0)),  # 7
    Part.LineSegment(Vector(9.2, 53.2, 0), Vector(7.8, 53.2, 0)),  # 8
    Part.LineSegment(Vector(7.8, 53.2, 0), Vector(7.8, 50.8, 0)),  # 9
    Part.LineSegment(Vector(7.8, 50.8, 0), Vector(9.2, 50.8, 0)),  # 10
    Part.LineSegment(Vector(9.2, 50.8, 0), Vector(9.2, 53.2, 0)),  # 11
    Part.LineSegment(Vector(9.2, 143.2, 0), Vector(7.8, 143.2, 0)),  # 12
    Part.LineSegment(Vector(7.8, 143.2, 0), Vector(7.8, 140.8, 0)),  # 13
    Part.LineSegment(Vector(7.8, 140.8, 0), Vector(9.2, 140.8, 0)),  # 14
    Part.LineSegment(Vector(9.2, 140.8, 0), Vector(9.2, 143.2, 0)),  # 15
], False)
sketch8.addConstraint([
    Sketcher.Constraint("Coincident", 0, 2, 1, 1),
    Sketcher.Constraint("Coincident", 1, 2, 2, 1),
    Sketcher.Constraint("Coincident", 2, 2, 3, 1),
    Sketcher.Constraint("Coincident", 3, 2, 0, 1),
    Sketcher.Constraint("Coincident", 4, 2, 5, 1),
    Sketcher.Constraint("Coincident", 5, 2, 6, 1),
    Sketcher.Constraint("Coincident", 6, 2, 7, 1),
    Sketcher.Constraint("Coincident", 7, 2, 4, 1),
    Sketcher.Constraint("Coincident", 8, 2, 9, 1),
    Sketcher.Constraint("Coincident", 9, 2, 10, 1),
    Sketcher.Constraint("Coincident", 10, 2, 11, 1),
    Sketcher.Constraint("Coincident", 11, 2, 8, 1),
    Sketcher.Constraint("Coincident", 12, 2, 13, 1),
    Sketcher.Constraint("Coincident", 13, 2, 14, 1),
    Sketcher.Constraint("Coincident", 14, 2, 15, 1),
    Sketcher.Constraint("Coincident", 15, 2, 12, 1),
    Sketcher.Constraint("Vertical", 0),
    Sketcher.Constraint("Horizontal", 1),
    Sketcher.Constraint("Vertical", 2),
    Sketcher.Constraint("Horizontal", 3),
    Sketcher.Constraint("Vertical", 4),
    Sketcher.Constraint("Horizontal", 5),
    Sketcher.Constraint("Vertical", 6),
    Sketcher.Constraint("Horizontal", 7),
    Sketcher.Constraint("Horizontal", 8),
    Sketcher.Constraint("Vertical", 9),
    Sketcher.Constraint("Horizontal", 10),
    Sketcher.Constraint("Vertical", 11),
    Sketcher.Constraint("Horizontal", 12),
    Sketcher.Constraint("Vertical", 13),
    Sketcher.Constraint("Horizontal", 14),
    Sketcher.Constraint("Vertical", 15),
    Sketcher.Constraint("PointOnObject", 0, 2, -2),
    Sketcher.Constraint("PointOnObject", 4, 2, -2),
    Sketcher.Constraint("Horizontal", 7, 2, 8, 2),
    Sketcher.Constraint("Horizontal", 5, 2, 9, 2),
    Sketcher.Constraint("Horizontal", 3, 2, 12, 2),
    Sketcher.Constraint("Horizontal", 1, 2, 13, 2),
    Sketcher.Constraint("Vertical", 2, 2, 5, 2),
    Sketcher.Constraint("Vertical", 9, 2, 12, 2),
    Sketcher.Constraint("Vertical", 11, 2, 14, 2),
    Sketcher.Constraint("Equal", 2, 4),
    Sketcher.Constraint("DistanceX", 1, 1, 1, 2, Q("1.6 mm")),
    Sketcher.Constraint("DistanceX", 8, 2, 8, 1, Q("1.4 mm")),
    Sketcher.Constraint("DistanceY", 0, 2, 0, 1, Q("2.5 mm")),
    Sketcher.Constraint("DistanceY", 4, 2, 0, 2, Q("90 mm")),
    Sketcher.Constraint("DistanceX", 6, 2, 8, 2, Q("6.175 mm")),
    Sketcher.Constraint("DistanceY", -1, 1, 0, 2, Q("140.75 mm")),
])
pocket5 = body.newObject("PartDesign::Pocket", "Pocket004")
pocket5.Profile = sketch8
pocket5.Type = "ThroughAll"

doc.recompute()
